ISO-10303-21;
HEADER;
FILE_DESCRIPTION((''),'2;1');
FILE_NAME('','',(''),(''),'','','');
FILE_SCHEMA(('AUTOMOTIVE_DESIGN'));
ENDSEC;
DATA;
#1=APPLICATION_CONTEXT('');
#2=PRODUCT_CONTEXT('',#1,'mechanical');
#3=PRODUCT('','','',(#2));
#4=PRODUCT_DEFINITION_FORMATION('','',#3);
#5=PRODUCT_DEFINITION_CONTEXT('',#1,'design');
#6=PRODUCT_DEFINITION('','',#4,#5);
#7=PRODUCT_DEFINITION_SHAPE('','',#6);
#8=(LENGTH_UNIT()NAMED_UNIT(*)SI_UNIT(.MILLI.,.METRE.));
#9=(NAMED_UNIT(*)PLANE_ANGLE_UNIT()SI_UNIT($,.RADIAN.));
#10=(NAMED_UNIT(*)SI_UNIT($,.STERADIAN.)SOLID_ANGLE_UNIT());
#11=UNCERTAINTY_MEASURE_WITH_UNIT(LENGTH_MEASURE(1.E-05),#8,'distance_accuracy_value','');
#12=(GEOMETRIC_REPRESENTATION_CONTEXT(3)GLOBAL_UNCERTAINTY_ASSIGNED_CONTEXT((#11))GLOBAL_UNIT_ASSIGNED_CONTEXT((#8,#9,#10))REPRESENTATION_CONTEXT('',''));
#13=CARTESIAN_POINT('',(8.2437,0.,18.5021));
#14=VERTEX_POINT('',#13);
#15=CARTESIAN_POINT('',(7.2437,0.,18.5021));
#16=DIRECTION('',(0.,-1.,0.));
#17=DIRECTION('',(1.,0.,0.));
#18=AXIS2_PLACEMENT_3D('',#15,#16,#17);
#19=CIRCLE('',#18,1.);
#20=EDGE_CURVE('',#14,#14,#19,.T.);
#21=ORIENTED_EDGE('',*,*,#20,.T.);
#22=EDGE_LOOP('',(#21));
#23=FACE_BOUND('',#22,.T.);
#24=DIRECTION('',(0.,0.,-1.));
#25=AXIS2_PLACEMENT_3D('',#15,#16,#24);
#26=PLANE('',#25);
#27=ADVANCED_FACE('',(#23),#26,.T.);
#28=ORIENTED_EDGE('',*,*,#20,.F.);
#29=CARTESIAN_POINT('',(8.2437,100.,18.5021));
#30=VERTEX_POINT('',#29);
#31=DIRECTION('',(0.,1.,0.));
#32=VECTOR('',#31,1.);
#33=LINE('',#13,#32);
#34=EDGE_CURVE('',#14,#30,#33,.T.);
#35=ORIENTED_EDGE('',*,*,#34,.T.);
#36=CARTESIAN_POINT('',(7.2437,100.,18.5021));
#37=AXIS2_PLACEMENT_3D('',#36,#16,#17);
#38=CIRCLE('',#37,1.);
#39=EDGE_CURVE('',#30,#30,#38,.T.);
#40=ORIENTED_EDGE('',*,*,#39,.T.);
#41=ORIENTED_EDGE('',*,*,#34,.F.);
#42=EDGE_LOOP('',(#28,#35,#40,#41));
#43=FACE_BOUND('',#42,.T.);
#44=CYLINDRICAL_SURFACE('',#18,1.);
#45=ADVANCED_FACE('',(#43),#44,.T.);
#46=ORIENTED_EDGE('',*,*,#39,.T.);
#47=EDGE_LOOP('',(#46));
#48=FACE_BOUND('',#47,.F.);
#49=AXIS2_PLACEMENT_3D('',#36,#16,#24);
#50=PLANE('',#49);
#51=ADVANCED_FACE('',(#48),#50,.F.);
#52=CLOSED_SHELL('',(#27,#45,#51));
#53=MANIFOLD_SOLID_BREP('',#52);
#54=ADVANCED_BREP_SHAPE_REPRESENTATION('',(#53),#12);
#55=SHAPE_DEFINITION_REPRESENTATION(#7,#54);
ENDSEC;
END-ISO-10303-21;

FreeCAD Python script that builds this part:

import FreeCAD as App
import Part
import Sketcher
Q = App.Units.Quantity

doc = App.newDocument("Part")
params = doc.addObject("Spreadsheet::Sheet", "Params")
for row, (alias, value) in enumerate([
    ("sketch1_diameter", "2 mm"),
    ("pad1_length", "100 mm"),
], start=1):
    params.set(f"A{row}", alias)
    params.set(f"B{row}", "=" + value)
    params.setAlias(f"B{row}", alias)

body = doc.addObject("PartDesign::Body", "Body")

sketch1 = body.newObject("Sketcher::SketchObject", "Sketch")
sketch1.AttachmentSupport = (doc.getObject("XZ_Plane"), [""])
sketch1.MapMode = "FlatFace"
sketch1.addGeometry(Part.Circle(App.Vector(7.2437, 18.5021, 0), App.Vector(0, 0, 1), 1), False)
sketch1.addConstraint(Sketcher.Constraint("Diameter", 0, Q("2 mm")))
sketch1.addConstraint(Sketcher.Constraint("DistanceY", -1, 1, 0, 3, Q("18.502 mm")))
sketch1.addConstraint(Sketcher.Constraint("DistanceX", -1, 1, 0, 3, Q("7.2437 mm")))
sketch1.setExpression("Constraints[0]", "Params.sketch1_diameter")
pad1 = body.newObject("PartDesign::Pad", "Pad")
pad1.Profile = sketch1
pad1.setExpression("Length", "Params.pad1_length")
pad1.Reversed = True

doc.recompute()
